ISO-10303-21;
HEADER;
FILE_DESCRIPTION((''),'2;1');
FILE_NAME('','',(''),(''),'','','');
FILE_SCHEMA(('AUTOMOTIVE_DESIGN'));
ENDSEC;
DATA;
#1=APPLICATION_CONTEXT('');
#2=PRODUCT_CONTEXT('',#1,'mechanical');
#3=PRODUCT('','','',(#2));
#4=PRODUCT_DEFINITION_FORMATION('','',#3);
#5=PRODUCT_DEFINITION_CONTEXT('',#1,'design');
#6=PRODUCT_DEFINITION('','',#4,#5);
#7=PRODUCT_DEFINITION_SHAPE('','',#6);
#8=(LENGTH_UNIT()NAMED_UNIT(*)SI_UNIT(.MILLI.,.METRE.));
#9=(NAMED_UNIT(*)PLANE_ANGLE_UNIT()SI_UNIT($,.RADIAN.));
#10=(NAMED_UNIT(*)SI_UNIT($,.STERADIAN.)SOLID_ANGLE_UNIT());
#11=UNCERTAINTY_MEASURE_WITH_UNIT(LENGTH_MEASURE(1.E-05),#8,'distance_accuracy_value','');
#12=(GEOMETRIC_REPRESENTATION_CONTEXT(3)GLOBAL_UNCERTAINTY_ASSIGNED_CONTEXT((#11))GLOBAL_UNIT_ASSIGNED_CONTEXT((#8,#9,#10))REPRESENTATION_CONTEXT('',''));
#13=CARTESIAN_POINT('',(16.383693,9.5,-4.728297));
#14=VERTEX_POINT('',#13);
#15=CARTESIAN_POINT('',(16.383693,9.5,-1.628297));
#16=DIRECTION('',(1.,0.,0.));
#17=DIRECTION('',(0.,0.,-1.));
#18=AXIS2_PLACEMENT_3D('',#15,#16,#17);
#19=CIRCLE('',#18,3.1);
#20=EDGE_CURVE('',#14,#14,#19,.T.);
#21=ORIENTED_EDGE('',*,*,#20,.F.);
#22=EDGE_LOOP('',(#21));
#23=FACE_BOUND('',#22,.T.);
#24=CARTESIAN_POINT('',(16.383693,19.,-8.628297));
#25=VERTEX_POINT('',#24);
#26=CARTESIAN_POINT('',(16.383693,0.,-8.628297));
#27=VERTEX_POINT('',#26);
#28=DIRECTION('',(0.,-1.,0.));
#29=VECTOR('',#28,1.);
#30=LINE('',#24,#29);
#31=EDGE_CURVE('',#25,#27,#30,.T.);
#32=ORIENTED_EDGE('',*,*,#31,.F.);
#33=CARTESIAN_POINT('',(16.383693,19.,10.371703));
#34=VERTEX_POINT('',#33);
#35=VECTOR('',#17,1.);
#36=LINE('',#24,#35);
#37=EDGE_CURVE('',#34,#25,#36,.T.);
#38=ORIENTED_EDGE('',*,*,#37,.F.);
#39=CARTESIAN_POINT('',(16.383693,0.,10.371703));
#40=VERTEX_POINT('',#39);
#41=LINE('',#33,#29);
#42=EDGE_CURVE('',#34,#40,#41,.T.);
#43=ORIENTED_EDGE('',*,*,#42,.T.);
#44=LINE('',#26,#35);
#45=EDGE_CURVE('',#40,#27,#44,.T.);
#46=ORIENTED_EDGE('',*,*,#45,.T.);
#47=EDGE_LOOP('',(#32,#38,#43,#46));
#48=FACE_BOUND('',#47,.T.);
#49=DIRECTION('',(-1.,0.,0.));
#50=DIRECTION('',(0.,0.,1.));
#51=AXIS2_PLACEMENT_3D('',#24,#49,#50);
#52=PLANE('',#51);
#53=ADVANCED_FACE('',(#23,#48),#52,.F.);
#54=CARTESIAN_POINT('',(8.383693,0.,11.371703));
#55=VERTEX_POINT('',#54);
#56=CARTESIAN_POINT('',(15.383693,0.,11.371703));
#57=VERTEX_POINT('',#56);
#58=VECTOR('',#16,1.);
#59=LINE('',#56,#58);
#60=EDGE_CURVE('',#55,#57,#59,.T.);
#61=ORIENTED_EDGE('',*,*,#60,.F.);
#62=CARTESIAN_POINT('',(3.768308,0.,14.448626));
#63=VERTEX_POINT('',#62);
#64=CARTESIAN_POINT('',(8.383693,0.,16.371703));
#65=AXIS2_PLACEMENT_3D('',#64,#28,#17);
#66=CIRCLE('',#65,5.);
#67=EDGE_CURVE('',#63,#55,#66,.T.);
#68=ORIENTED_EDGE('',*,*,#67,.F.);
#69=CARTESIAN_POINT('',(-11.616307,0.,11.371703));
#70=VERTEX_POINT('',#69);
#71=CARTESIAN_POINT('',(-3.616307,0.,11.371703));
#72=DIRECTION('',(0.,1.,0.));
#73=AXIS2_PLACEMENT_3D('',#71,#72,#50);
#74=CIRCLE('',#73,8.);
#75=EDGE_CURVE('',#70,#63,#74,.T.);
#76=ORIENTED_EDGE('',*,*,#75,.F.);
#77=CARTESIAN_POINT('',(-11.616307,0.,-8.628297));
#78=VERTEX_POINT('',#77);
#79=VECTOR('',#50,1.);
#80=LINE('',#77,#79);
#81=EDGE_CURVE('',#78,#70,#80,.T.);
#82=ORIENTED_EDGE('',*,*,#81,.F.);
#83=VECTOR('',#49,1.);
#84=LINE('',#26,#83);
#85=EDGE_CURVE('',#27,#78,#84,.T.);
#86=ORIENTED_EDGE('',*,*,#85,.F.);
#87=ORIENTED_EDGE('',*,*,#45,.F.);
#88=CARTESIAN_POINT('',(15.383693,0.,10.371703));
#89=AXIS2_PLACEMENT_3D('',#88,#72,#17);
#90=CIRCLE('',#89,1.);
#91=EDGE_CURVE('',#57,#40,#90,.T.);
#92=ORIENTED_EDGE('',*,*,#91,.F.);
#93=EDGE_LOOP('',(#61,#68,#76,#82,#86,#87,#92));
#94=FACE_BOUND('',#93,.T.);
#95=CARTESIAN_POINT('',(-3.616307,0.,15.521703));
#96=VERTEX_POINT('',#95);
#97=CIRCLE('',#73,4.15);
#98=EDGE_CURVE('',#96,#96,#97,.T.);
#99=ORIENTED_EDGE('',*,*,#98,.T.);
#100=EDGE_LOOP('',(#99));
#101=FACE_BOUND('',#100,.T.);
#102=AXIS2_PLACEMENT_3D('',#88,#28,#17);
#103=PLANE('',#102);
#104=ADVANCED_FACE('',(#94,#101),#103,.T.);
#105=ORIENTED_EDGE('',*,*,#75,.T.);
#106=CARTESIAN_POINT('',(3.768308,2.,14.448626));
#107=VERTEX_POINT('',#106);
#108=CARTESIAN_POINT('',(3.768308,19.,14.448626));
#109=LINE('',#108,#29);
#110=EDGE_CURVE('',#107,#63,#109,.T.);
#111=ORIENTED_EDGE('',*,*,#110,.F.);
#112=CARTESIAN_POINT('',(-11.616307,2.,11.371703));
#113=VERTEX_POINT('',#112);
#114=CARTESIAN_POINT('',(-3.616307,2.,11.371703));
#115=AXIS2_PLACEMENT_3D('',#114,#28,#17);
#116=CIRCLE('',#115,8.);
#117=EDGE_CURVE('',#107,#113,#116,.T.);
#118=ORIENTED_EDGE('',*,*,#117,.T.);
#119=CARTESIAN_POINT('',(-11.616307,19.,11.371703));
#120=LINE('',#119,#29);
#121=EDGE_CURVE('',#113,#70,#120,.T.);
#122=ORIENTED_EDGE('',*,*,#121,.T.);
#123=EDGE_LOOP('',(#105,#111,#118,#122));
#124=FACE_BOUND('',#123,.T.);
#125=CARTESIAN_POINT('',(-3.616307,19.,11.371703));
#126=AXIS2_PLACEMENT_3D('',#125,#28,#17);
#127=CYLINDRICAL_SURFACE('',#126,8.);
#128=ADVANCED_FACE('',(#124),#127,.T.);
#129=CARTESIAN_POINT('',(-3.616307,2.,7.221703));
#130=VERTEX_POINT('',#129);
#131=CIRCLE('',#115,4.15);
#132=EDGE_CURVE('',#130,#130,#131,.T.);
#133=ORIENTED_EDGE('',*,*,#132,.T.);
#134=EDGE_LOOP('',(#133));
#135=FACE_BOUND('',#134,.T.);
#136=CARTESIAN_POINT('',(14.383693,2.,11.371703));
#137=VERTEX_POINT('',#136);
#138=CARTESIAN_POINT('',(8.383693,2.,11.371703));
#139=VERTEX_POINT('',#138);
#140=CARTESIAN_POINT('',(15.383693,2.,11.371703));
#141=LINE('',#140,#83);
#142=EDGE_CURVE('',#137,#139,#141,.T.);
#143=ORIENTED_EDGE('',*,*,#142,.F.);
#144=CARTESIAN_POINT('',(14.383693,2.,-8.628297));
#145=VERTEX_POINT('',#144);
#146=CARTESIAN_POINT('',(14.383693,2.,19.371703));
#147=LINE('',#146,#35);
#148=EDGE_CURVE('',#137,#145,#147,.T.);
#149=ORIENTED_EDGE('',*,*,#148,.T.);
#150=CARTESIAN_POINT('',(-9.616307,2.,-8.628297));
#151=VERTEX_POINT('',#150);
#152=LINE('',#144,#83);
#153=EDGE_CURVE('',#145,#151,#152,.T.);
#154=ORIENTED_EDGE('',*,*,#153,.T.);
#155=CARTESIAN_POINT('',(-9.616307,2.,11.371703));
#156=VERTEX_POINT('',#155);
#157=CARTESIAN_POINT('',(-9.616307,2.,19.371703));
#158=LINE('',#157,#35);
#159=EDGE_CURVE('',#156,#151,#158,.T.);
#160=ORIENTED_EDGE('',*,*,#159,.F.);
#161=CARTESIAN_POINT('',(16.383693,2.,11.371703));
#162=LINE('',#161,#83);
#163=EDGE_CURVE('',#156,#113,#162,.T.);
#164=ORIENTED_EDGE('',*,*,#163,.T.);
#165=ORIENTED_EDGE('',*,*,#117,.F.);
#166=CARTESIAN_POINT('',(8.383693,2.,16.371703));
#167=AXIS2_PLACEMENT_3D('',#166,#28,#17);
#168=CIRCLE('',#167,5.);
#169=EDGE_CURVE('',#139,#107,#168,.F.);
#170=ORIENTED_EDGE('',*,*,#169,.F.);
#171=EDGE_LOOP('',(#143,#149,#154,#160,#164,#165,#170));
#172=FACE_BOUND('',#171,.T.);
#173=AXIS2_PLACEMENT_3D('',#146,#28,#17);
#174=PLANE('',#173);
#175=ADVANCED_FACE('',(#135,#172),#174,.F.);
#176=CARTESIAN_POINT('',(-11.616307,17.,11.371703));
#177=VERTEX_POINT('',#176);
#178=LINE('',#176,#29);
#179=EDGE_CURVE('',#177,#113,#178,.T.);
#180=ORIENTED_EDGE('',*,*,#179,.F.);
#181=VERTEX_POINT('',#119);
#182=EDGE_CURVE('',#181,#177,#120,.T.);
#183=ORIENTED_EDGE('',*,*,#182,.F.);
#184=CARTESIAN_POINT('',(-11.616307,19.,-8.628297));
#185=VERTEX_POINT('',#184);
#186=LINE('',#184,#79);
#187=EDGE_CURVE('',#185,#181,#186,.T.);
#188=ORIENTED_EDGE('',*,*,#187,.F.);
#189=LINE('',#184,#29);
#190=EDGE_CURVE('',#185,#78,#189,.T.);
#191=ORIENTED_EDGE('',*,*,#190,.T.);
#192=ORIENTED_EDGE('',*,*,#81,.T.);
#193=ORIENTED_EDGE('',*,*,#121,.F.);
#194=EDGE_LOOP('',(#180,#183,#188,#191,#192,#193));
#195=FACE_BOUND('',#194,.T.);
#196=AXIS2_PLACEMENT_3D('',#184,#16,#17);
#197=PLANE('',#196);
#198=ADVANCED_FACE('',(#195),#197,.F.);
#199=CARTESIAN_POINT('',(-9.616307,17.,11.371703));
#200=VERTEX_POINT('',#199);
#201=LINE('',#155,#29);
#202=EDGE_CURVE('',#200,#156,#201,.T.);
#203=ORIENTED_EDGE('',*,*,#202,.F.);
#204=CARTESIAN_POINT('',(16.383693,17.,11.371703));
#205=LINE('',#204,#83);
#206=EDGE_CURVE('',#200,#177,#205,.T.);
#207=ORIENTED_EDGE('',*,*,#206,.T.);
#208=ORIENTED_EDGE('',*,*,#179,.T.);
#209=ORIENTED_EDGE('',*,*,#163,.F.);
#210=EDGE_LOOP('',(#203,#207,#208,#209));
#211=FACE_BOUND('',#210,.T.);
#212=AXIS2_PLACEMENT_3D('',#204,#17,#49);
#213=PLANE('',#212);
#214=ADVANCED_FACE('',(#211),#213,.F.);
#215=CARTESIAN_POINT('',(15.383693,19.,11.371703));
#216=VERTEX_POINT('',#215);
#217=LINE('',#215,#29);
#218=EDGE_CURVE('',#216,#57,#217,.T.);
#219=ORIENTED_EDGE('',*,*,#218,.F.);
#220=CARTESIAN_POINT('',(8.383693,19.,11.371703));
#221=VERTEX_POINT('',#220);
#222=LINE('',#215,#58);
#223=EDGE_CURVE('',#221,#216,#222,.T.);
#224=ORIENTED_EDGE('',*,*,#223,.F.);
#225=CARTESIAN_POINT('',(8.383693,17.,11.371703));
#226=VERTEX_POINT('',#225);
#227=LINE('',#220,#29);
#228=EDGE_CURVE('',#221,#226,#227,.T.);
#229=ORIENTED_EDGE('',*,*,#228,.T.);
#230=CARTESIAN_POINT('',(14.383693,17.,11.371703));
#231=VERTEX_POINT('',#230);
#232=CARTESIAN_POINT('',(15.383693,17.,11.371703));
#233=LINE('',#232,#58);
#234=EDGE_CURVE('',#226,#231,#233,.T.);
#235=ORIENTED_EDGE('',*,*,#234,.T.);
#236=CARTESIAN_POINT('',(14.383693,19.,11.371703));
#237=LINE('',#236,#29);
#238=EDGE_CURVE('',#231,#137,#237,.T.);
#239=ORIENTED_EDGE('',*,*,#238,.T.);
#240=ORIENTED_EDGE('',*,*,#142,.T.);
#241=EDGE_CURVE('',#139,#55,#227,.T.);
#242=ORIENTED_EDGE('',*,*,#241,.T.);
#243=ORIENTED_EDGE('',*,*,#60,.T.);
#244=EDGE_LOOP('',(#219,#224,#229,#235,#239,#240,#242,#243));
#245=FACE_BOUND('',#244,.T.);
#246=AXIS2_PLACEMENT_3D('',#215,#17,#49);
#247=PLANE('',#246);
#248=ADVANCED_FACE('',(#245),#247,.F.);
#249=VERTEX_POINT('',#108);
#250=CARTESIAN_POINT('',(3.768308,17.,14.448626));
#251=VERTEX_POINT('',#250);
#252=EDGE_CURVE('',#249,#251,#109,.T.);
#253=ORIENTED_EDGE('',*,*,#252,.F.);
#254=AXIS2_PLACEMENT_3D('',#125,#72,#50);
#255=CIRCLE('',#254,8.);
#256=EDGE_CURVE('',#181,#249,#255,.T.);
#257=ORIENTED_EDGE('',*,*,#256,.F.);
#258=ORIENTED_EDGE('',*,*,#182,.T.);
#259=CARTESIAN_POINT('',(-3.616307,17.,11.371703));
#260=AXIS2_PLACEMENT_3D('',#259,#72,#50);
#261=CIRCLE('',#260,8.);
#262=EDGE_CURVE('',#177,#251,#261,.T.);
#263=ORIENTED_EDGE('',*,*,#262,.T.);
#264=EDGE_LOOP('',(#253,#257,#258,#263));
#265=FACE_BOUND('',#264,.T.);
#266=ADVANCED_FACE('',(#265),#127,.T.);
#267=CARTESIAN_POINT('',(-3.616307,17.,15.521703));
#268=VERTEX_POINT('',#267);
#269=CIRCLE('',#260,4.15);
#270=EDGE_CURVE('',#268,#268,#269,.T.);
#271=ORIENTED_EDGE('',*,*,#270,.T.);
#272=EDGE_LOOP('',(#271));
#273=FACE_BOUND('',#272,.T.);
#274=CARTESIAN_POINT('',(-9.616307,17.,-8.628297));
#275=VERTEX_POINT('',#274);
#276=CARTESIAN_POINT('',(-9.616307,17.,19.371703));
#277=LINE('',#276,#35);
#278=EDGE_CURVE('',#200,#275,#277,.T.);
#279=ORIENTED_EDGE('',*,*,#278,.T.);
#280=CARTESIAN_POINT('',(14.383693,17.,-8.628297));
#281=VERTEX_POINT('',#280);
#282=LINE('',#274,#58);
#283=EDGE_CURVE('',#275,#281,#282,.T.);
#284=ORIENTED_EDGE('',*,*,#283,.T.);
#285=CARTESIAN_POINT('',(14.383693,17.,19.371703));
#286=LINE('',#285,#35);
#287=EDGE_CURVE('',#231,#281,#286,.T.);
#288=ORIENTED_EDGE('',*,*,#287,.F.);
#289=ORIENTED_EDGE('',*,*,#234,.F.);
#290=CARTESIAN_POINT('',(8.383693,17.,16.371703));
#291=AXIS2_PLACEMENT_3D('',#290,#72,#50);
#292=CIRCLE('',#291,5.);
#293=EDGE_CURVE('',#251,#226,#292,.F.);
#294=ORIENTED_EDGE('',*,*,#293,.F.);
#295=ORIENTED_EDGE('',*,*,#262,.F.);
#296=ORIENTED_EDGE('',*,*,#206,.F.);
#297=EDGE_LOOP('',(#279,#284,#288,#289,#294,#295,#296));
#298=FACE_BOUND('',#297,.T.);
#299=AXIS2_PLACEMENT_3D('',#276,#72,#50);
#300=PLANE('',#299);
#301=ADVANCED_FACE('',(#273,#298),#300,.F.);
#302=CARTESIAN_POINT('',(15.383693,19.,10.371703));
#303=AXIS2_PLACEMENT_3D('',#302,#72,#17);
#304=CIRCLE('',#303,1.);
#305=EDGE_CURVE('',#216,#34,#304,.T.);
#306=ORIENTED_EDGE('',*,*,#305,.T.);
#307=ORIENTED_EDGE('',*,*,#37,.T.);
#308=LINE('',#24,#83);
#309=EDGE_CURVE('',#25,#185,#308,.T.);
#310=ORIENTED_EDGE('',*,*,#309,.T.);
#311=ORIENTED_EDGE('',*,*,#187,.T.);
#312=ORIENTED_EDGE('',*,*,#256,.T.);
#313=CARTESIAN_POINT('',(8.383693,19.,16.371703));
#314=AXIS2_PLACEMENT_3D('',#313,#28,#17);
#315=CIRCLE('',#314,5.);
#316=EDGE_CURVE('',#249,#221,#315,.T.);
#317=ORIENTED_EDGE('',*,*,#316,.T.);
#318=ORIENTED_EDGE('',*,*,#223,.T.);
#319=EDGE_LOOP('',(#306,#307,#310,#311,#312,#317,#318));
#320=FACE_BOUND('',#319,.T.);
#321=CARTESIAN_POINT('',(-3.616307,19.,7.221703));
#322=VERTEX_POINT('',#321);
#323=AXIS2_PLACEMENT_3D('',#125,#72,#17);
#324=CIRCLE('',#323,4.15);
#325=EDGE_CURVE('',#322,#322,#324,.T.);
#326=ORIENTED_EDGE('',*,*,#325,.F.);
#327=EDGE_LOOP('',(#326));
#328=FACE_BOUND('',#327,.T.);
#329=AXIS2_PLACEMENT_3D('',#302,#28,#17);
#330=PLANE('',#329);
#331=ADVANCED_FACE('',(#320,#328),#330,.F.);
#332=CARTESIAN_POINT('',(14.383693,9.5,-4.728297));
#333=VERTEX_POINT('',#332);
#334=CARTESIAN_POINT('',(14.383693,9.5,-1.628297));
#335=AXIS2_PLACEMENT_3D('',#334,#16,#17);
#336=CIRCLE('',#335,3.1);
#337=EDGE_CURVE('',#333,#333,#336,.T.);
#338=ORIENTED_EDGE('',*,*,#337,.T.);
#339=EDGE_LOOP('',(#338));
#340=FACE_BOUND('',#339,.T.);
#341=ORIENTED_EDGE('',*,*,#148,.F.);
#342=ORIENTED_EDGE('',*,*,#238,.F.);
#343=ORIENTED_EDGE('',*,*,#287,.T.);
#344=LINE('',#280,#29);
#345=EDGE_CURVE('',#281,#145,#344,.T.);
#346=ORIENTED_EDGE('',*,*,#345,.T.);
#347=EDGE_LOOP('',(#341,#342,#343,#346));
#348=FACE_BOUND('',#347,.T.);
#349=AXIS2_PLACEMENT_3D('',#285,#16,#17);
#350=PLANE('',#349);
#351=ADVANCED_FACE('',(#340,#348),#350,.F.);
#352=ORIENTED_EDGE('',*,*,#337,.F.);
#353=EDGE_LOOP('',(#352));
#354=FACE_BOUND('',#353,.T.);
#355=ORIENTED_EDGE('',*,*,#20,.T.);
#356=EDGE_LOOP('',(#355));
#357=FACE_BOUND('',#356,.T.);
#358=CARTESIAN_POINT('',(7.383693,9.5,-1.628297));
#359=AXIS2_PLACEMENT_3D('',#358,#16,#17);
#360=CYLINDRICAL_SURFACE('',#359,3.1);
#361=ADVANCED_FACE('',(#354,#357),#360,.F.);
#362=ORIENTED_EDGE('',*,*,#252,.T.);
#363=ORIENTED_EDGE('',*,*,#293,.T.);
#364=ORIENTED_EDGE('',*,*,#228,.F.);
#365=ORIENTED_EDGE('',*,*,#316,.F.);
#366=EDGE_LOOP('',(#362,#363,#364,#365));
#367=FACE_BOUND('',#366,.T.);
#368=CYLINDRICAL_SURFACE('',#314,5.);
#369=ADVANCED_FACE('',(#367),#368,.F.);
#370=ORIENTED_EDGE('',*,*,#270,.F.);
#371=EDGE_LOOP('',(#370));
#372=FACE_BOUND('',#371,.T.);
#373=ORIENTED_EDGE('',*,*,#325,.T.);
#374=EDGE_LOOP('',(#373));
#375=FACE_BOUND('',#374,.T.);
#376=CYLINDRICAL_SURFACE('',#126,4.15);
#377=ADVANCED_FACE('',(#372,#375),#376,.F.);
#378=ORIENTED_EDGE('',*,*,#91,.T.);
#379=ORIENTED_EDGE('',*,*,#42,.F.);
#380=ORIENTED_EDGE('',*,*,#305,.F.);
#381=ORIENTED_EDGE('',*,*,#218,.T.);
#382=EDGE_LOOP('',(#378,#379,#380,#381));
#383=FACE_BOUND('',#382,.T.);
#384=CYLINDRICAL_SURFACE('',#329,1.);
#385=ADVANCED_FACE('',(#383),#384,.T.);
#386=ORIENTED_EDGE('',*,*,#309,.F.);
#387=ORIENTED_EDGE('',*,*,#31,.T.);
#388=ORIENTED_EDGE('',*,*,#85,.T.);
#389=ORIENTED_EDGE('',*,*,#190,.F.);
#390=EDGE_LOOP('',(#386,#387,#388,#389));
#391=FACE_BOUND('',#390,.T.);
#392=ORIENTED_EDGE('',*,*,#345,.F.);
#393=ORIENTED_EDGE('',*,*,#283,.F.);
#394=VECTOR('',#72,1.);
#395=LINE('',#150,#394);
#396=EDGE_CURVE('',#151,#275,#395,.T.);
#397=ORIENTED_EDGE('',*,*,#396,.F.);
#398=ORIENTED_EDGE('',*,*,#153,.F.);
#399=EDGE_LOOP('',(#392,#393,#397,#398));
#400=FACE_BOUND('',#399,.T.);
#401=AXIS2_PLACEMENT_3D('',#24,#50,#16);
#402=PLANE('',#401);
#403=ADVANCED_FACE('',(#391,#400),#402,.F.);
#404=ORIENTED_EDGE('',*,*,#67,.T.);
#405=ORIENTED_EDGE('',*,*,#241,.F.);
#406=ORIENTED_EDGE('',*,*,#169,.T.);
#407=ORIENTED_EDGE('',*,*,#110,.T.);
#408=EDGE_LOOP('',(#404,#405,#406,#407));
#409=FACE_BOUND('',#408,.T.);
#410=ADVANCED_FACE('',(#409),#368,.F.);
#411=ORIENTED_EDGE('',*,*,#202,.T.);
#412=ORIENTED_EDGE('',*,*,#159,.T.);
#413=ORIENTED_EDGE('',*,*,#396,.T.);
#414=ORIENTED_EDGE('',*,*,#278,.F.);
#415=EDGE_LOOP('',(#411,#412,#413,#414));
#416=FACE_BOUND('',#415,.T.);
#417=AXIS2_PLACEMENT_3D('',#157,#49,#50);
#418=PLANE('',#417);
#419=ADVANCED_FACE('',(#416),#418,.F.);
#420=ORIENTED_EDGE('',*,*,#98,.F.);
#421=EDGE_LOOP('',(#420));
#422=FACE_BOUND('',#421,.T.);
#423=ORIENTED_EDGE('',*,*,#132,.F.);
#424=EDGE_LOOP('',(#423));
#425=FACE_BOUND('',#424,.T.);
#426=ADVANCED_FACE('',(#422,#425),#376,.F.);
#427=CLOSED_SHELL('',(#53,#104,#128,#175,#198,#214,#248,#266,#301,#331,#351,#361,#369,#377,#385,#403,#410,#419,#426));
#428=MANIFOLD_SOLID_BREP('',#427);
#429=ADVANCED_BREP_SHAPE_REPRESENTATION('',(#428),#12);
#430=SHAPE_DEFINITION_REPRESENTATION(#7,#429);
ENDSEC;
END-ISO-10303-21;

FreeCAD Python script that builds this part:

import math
import FreeCAD as App
import Part
import Sketcher

V = App.Vector

doc = App.newDocument("Part")
body = doc.addObject("PartDesign::Body", "Body")

# Sketch on XZ plane
sketch1 = body.newObject("Sketcher::SketchObject", "Sketch")
sketch1.AttachmentSupport = (doc.getObject("XZ_Plane"), [""])
sketch1.MapMode = "FlatFace"
sketch1.addGeometry([
    Part.LineSegment(V(16.4, -8.6, 0), V(-11.6, -8.6, 0)),  # 0
    Part.LineSegment(V(-11.6, -8.6, 0), V(-11.6, 11.4, 0)),  # 1
    Part.ArcOfCircle(Part.Circle(V(-3.6, 11.4, 0), V(0, 0, 1), 8), math.radians(23), math.radians(180)),  # 2
    Part.ArcOfCircle(Part.Circle(V(8.4, 16.4, 0), V(0, 0, 1), 5), math.radians(-157), math.radians(-90)),  # 3
    Part.LineSegment(V(8.4, 11.4, 0), V(15.4, 11.4, 0)),  # 4
    Part.ArcOfCircle(Part.Circle(V(15.4, 10.4, 0), V(0, 0, 1), 1), math.radians(0), math.radians(90)),  # 5
    Part.LineSegment(V(16.4, 10.4, 0), V(16.4, -8.6, 0)),  # 6
    Part.Circle(V(-3.6, 11.4, 0), V(0, 0, 1), 4.2),  # 7
], False)
sketch1.addConstraint([
    Sketcher.Constraint("Coincident", 0, 2, 1, 1),
    Sketcher.Constraint("Tangent", 1, 2, 2, 2),
    Sketcher.Constraint("Tangent", 2, 1, 3, 1),
    Sketcher.Constraint("Tangent", 3, 2, 4, 1),
    Sketcher.Constraint("Tangent", 4, 2, 5, 2),
    Sketcher.Constraint("Tangent", 5, 1, 6, 1),
    Sketcher.Constraint("Coincident", 6, 2, 0, 1),
    Sketcher.Constraint("Horizontal", 0),
    Sketcher.Constraint("Vertical", 1),
    Sketcher.Constraint("Horizontal", 4),
    Sketcher.Constraint("Vertical", 6),
    Sketcher.Constraint("Coincident", 7, 3, 2, 3),
    Sketcher.Constraint("Horizontal", 1, 2, 3, 2),
    Sketcher.Constraint("Radius", 2, 8.0),
    Sketcher.Constraint("Radius", 3, 5.0),
    Sketcher.Constraint("Radius", 5, 1.0),
    Sketcher.Constraint("Diameter", 7, 8.3),
    Sketcher.Constraint("DistanceX", 0, 2, 0, 1, 28.0),
    Sketcher.Constraint("DistanceY", 1, 1, 1, 2, 20.0),
    Sketcher.Constraint("DistanceX", -1, 1, 2, 1, 3.768308),
    Sketcher.Constraint("DistanceY", -1, 1, 2, 3, 11.371703),
])
pad1 = body.newObject("PartDesign::Pad", "Pad")
pad1.Profile = sketch1
pad1.Length = 19
pad1.Reversed = True

# Sketch on XY plane
sketch2 = body.newObject("Sketcher::SketchObject", "Sketch001")
sketch2.AttachmentSupport = (doc.getObject("XY_Plane"), [""])
sketch2.MapMode = "FlatFace"
sketch2.AttachmentOffset = App.Placement(V(0, 0, -8.628297), App.Rotation())
sketch2.addGeometry([
    Part.LineSegment(V(14, 17, 0), V(14, 2, 0)),
    Part.LineSegment(V(14, 2, 0), V(-10, 2, 0)),
    Part.LineSegment(V(-10, 2, 0), V(-10, 17, 0)),
    Part.LineSegment(V(-10, 17, 0), V(14, 17, 0)),
], False)
sketch2.addConstraint([
    Sketcher.Constraint("Coincident", 0, 2, 1, 1),
    Sketcher.Constraint("Coincident", 1, 2, 2, 1),
    Sketcher.Constraint("Coincident", 2, 2, 3, 1),
    Sketcher.Constraint("Coincident", 3, 2, 0, 1),
    Sketcher.Constraint("Vertical", 0),
    Sketcher.Constraint("Horizontal", 1),
    Sketcher.Constraint("Vertical", 2),
    Sketcher.Constraint("Horizontal", 3),
    Sketcher.Constraint("DistanceX", 1, 2, 1, 1, 24.0),
    Sketcher.Constraint("DistanceY", 0, 2, 0, 1, 15.0),
    Sketcher.Constraint("DistanceY", -1, 1, 0, 2, 2.0),
    Sketcher.Constraint("DistanceX", -1, 1, 0, 2, 14.383693),
])
pocket1 = body.newObject("PartDesign::Pocket", "Pocket")
pocket1.Profile = sketch2
pocket1.Type = "ThroughAll"
pocket1.Reversed = True

# Sketch on YZ plane
sketch3 = body.newObject("Sketcher::SketchObject", "Sketch002")
sketch3.AttachmentSupport = (doc.getObject("YZ_Plane"), [""])
sketch3.MapMode = "FlatFace"
sketch3.AttachmentOffset = App.Placement(V(0, 0, -11.616307), App.Rotation())
sketch3.addGeometry([
    Part.LineSegment(V(17, 11, 0), V(2, 11, 0)),
    Part.LineSegment(V(2, 11, 0), V(2, 17, 0)),
    Part.LineSegment(V(2, 17, 0), V(17, 17, 0)),
    Part.LineSegment(V(17, 17, 0), V(17, 11, 0)),
], False)
sketch3.addConstraint([
    Sketcher.Constraint("Coincident", 0, 2, 1, 1),
    Sketcher.Constraint("Coincident", 1, 2, 2, 1),
    Sketcher.Constraint("Coincident", 2, 2, 3, 1),
    Sketcher.Constraint("Coincident", 3, 2, 0, 1),
    Sketcher.Constraint("Horizontal", 0),
    Sketcher.Constraint("Vertical", 1),
    Sketcher.Constraint("Horizontal", 2),
    Sketcher.Constraint("Vertical", 3),
    Sketcher.Constraint("DistanceX", 0, 2, 0, 1, 15.0),
    Sketcher.Constraint("DistanceX", -1, 1, 0, 2, 2.0),
    Sketcher.Constraint("DistanceY", 1, 1, 1, 2, 5.291503),
    Sketcher.Constraint("DistanceY", -1, 1, 0, 2, 11.371703),
])
pocket2 = body.newObject("PartDesign::Pocket", "Pocket001")
pocket2.Profile = sketch3
pocket2.Type = "ThroughAll"
pocket2.Reversed = True

# Sketch on YZ plane
sketch4 = body.newObject("Sketcher::SketchObject", "Sketch003")
sketch4.AttachmentSupport = (doc.getObject("YZ_Plane"), [""])
sketch4.MapMode = "FlatFace"
sketch4.AttachmentOffset = App.Placement(V(0, 0, 16.383693), App.Rotation())
sketch4.addGeometry(Part.Circle(V(9.5, -1.6, 0), V(0, 0, 1), 3.1), False)
sketch4.addConstraint([
    Sketcher.Constraint("Diameter", 0, 6.2),
    Sketcher.Constraint("DistanceX", -1, 1, 0, 3, 9.5),
    Sketcher.Constraint("DistanceY", 0, 3, -1, 1, 1.628297),
])
pocket3 = body.newObject("PartDesign::Pocket", "Pocket002")
pocket3.Profile = sketch4
pocket3.Length = 9

doc.recompute()
